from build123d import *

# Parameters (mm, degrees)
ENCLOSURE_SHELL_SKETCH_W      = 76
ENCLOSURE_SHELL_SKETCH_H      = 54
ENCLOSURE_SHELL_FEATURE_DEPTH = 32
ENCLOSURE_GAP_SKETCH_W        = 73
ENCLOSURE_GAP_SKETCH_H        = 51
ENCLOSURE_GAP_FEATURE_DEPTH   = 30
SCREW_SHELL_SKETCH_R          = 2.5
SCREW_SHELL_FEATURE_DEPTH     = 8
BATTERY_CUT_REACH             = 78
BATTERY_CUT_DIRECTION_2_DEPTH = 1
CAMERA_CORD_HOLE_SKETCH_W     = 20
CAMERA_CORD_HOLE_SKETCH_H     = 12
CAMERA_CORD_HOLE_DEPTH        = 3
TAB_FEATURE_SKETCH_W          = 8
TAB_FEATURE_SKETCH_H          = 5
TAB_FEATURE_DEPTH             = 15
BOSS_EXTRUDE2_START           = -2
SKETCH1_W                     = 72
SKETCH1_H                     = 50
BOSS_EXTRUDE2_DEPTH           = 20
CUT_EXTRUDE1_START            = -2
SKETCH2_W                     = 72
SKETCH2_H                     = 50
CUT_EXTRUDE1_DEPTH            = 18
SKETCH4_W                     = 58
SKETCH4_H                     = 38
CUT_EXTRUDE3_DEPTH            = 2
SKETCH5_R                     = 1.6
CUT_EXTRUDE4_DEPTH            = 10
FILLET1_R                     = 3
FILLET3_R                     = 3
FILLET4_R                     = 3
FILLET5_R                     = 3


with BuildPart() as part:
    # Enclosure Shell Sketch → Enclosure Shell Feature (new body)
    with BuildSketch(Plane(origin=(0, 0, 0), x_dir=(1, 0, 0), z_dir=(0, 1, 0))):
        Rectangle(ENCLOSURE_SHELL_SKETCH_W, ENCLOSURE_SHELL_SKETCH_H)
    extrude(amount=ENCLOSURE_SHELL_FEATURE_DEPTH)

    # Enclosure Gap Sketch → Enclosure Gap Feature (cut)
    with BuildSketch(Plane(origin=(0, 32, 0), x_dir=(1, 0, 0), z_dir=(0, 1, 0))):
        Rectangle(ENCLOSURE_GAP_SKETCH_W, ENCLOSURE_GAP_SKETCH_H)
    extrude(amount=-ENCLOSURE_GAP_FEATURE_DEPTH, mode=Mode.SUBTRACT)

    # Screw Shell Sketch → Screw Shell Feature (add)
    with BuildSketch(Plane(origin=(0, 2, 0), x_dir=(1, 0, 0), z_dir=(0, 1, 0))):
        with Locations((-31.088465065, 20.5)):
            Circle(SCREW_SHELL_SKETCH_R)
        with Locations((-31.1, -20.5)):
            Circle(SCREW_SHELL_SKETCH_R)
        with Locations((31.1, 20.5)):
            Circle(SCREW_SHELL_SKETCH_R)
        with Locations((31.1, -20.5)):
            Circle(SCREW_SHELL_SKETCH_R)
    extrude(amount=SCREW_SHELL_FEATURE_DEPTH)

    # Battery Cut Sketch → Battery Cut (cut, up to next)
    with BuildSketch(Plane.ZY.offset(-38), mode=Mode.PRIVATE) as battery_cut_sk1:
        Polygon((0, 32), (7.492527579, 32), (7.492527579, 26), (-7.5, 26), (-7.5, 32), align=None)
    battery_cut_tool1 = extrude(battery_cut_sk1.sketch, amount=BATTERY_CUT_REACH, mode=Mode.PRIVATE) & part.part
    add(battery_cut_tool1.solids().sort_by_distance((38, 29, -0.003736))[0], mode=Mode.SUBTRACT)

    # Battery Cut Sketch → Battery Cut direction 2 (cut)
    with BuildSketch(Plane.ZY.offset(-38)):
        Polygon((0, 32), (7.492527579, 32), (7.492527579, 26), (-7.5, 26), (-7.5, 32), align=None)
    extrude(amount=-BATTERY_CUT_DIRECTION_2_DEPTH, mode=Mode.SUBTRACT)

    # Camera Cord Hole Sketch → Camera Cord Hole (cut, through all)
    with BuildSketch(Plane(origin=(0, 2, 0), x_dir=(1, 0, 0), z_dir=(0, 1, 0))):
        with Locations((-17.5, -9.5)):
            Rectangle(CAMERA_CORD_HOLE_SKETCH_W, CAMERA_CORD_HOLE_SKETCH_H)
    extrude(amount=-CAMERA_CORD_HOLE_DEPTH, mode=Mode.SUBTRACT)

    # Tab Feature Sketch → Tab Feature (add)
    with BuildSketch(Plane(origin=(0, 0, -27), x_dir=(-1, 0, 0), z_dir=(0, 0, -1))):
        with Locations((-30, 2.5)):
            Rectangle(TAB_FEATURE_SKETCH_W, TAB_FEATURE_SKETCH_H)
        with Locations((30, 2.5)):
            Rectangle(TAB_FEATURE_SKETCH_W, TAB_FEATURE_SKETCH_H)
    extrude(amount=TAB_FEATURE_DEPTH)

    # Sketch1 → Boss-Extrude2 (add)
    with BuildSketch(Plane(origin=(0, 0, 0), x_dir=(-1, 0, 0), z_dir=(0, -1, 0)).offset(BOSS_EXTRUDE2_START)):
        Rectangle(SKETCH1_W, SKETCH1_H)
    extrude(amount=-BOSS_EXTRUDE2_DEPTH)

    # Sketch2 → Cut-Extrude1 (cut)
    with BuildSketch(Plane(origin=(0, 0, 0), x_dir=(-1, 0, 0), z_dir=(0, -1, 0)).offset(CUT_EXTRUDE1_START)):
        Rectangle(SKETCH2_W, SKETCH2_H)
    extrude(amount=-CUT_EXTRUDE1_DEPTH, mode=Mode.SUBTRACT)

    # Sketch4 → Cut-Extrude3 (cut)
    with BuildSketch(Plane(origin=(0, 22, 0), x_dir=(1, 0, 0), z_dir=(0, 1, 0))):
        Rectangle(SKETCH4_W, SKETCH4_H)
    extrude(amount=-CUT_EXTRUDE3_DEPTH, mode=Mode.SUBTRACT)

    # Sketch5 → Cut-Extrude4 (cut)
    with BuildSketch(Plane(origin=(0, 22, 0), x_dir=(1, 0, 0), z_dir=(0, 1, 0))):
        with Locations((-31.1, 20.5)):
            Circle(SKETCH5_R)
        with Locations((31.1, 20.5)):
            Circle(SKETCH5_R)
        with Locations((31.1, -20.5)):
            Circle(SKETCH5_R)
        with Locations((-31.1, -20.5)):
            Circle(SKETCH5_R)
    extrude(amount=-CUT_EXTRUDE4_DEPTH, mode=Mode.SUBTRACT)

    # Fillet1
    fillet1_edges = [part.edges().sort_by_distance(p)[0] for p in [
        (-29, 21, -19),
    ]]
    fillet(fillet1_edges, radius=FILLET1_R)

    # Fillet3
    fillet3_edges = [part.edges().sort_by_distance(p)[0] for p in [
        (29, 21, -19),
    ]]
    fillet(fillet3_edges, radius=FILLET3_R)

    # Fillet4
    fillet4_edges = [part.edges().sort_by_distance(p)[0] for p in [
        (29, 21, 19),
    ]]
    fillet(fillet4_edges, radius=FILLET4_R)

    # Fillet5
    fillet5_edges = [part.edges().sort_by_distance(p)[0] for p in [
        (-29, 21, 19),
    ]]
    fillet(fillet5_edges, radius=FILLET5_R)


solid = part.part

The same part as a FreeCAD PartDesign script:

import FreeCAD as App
import Part
import Sketcher

V = App.Vector
Q = App.Units.Quantity


def edges_at(feature, points):
    """Names of the edges that pass closest to the given points."""
    edges = feature.Shape.Edges
    near = lambda p: min(range(len(edges)), key=lambda i: edges[i].distToShape(Part.Vertex(*p))[0])
    return sorted({f"Edge{near(p) + 1}" for p in points})

doc = App.newDocument("Part")
body = doc.addObject("PartDesign::Body", "Body")
body.AllowCompound = True

# Sketch on XZ plane
sketch1 = body.newObject("Sketcher::SketchObject", "Sketch")
sketch1.AttachmentSupport = (doc.getObject("XZ_Plane"), [""])
sketch1.MapMode = "FlatFace"
sketch1.addGeometry(Part.LineSegment(V(-38, -27, 0), V(-38, 27, 0)), False)
sketch1.addGeometry(Part.LineSegment(V(-38, 27, 0), V(38, 27, 0)), False)
sketch1.addGeometry(Part.LineSegment(V(38, 27, 0), V(38, -27, 0)), False)
sketch1.addGeometry(Part.LineSegment(V(38, -27, 0), V(-38, -27, 0)), False)
sketch1.addConstraint(Sketcher.Constraint("Coincident", 0, 2, 1, 1))
sketch1.addConstraint(Sketcher.Constraint("Coincident", 1, 2, 2, 1))
sketch1.addConstraint(Sketcher.Constraint("Coincident", 2, 2, 3, 1))
sketch1.addConstraint(Sketcher.Constraint("Coincident", 3, 2, 0, 1))
sketch1.addConstraint(Sketcher.Constraint("Vertical", 0))
sketch1.addConstraint(Sketcher.Constraint("Horizontal", 1))
sketch1.addConstraint(Sketcher.Constraint("Vertical", 2))
sketch1.addConstraint(Sketcher.Constraint("Horizontal", 3))
sketch1.addConstraint(Sketcher.Constraint("Symmetric", 0, 2, 2, 2, -1, 1))
sketch1.addConstraint(Sketcher.Constraint("DistanceX", 1, 1, 1, 2, Q("76 mm")))
sketch1.addConstraint(Sketcher.Constraint("DistanceY", 0, 1, 0, 2, Q("54 mm")))
pad1 = body.newObject("PartDesign::Pad", "Pad")
pad1.Profile = sketch1
pad1.Length = 32
pad1.Reversed = True

# Sketch on XZ plane
sketch2 = body.newObject("Sketcher::SketchObject", "Sketch001")
sketch2.AttachmentSupport = (doc.getObject("XZ_Plane"), [""])
sketch2.MapMode = "FlatFace"
sketch2.AttachmentOffset = App.Placement(V(0, 0, -32), App.Rotation())
sketch2.addGeometry(Part.LineSegment(V(-36.5, -25.5, 0), V(-36.5, 25.5, 0)), False)
sketch2.addGeometry(Part.LineSegment(V(-36.5, 25.5, 0), V(36.5, 25.5, 0)), False)
sketch2.addGeometry(Part.LineSegment(V(36.5, 25.5, 0), V(36.5, -25.5, 0)), False)
sketch2.addGeometry(Part.LineSegment(V(36.5, -25.5, 0), V(-36.5, -25.5, 0)), False)
sketch2.addConstraint(Sketcher.Constraint("Coincident", 0, 2, 1, 1))
sketch2.addConstraint(Sketcher.Constraint("Coincident", 1, 2, 2, 1))
sketch2.addConstraint(Sketcher.Constraint("Coincident", 2, 2, 3, 1))
sketch2.addConstraint(Sketcher.Constraint("Coincident", 3, 2, 0, 1))
sketch2.addConstraint(Sketcher.Constraint("Vertical", 0))
sketch2.addConstraint(Sketcher.Constraint("Horizontal", 1))
sketch2.addConstraint(Sketcher.Constraint("Vertical", 2))
sketch2.addConstraint(Sketcher.Constraint("Horizontal", 3))
sketch2.addConstraint(Sketcher.Constraint("Symmetric", 0, 2, 2, 2, -1, 1))
sketch2.addConstraint(Sketcher.Constraint("DistanceX", 1, 1, 1, 2, Q("73 mm")))
sketch2.addConstraint(Sketcher.Constraint("DistanceY", 0, 1, 0, 2, Q("51 mm")))
pocket1 = body.newObject("PartDesign::Pocket", "Pocket")
pocket1.Profile = sketch2
pocket1.Length = 30
pocket1.Reversed = True

# Sketch on XZ plane
sketch3 = body.newObject("Sketcher::SketchObject", "Sketch002")
sketch3.AttachmentSupport = (doc.getObject("XZ_Plane"), [""])
sketch3.MapMode = "FlatFace"
sketch3.AttachmentOffset = App.Placement(V(0, 0, -2), App.Rotation())
sketch3.addGeometry(Part.Circle(V(-31.088465, -20.5, 0), V(0, 0, 1), 2.5), False)
sketch3.addGeometry(Part.Circle(V(-31.1, 20.5, 0), V(0, 0, 1), 2.5), False)
sketch3.addGeometry(Part.Circle(V(31.1, -20.5, 0), V(0, 0, 1), 2.5), False)
sketch3.addGeometry(Part.Circle(V(31.1, 20.5, 0), V(0, 0, 1), 2.5), False)
sketch3.addConstraint(Sketcher.Constraint("Equal", 0, 1))
sketch3.addConstraint(Sketcher.Constraint("Equal", 1, 2))
sketch3.addConstraint(Sketcher.Constraint("Equal", 2, 3))
sketch3.addConstraint(Sketcher.Constraint("Symmetric", 1, 3, 2, 3, -1, 1))
sketch3.addConstraint(Sketcher.Constraint("Symmetric", 1, 3, 3, 3, -2))
sketch3.addConstraint(Sketcher.Constraint("Horizontal", 0, 3, 2, 3))
sketch3.addConstraint(Sketcher.Constraint("Diameter", 0, Q("5 mm")))
sketch3.addConstraint(Sketcher.Constraint("DistanceY", 0, 3, 1, 3, Q("41 mm")))
sketch3.addConstraint(Sketcher.Constraint("DistanceX", 1, 3, -1, 1, Q("31.1 mm")))
sketch3.addConstraint(Sketcher.Constraint("DistanceX", 0, 3, -1, 1, Q("31.088465 mm")))
pad2 = body.newObject("PartDesign::Pad", "Pad001")
pad2.Profile = sketch3
pad2.Length = 8
pad2.Reversed = True

# Sketch on YZ plane
sketch4 = body.newObject("Sketcher::SketchObject", "Sketch003")
sketch4.AttachmentSupport = (doc.getObject("YZ_Plane"), [""])
sketch4.MapMode = "FlatFace"
sketch4.AttachmentOffset = App.Placement(V(0, 0, 38), App.Rotation())
sketch4.addGeometry(Part.LineSegment(V(32, 7.492528, 0), V(32, -7.5, 0)), False)
sketch4.addGeometry(Part.LineSegment(V(32, -7.5, 0), V(26, -7.5, 0)), False)
sketch4.addGeometry(Part.LineSegment(V(26, -7.5, 0), V(26, 7.492528, 0)), False)
sketch4.addGeometry(Part.LineSegment(V(26, 7.492528, 0), V(32, 7.492528, 0)), False)
sketch4.addConstraint(Sketcher.Constraint("Coincident", 0, 2, 1, 1))
sketch4.addConstraint(Sketcher.Constraint("Coincident", 1, 2, 2, 1))
sketch4.addConstraint(Sketcher.Constraint("Coincident", 2, 2, 3, 1))
sketch4.addConstraint(Sketcher.Constraint("Coincident", 3, 2, 0, 1))
sketch4.addConstraint(Sketcher.Constraint("Vertical", 0))
sketch4.addConstraint(Sketcher.Constraint("Horizontal", 1))
sketch4.addConstraint(Sketcher.Constraint("Vertical", 2))
sketch4.addConstraint(Sketcher.Constraint("Horizontal", 3))
sketch4.addConstraint(Sketcher.Constraint("DistanceX", 1, 2, 1, 1, Q("6 mm")))
sketch4.addConstraint(Sketcher.Constraint("DistanceX", -1, 1, 0, 2, Q("32 mm")))
sketch4.addConstraint(Sketcher.Constraint("DistanceY", 0, 2, -1, 1, Q("7.5 mm")))
sketch4.addConstraint(Sketcher.Constraint("DistanceY", 0, 2, 0, 1, Q("14.992528 mm")))
pocket2 = body.newObject("PartDesign::Pocket", "Pocket001")
pocket2.Profile = sketch4
pocket2.Type = "UpToFirst"

# Sketch on YZ plane
sketch5 = body.newObject("Sketcher::SketchObject", "Sketch004")
sketch5.AttachmentSupport = (doc.getObject("YZ_Plane"), [""])
sketch5.MapMode = "FlatFace"
sketch5.AttachmentOffset = App.Placement(V(0, 0, 38), App.Rotation())
sketch5.addGeometry(Part.LineSegment(V(32, 7.492528, 0), V(32, -7.5, 0)), False)
sketch5.addGeometry(Part.LineSegment(V(32, -7.5, 0), V(26, -7.5, 0)), False)
sketch5.addGeometry(Part.LineSegment(V(26, -7.5, 0), V(26, 7.492528, 0)), False)
sketch5.addGeometry(Part.LineSegment(V(26, 7.492528, 0), V(32, 7.492528, 0)), False)
sketch5.addConstraint(Sketcher.Constraint("Coincident", 0, 2, 1, 1))
sketch5.addConstraint(Sketcher.Constraint("Coincident", 1, 2, 2, 1))
sketch5.addConstraint(Sketcher.Constraint("Coincident", 2, 2, 3, 1))
sketch5.addConstraint(Sketcher.Constraint("Coincident", 3, 2, 0, 1))
sketch5.addConstraint(Sketcher.Constraint("Vertical", 0))
sketch5.addConstraint(Sketcher.Constraint("Horizontal", 1))
sketch5.addConstraint(Sketcher.Constraint("Vertical", 2))
sketch5.addConstraint(Sketcher.Constraint("Horizontal", 3))
sketch5.addConstraint(Sketcher.Constraint("DistanceX", 1, 2, 1, 1, Q("6 mm")))
sketch5.addConstraint(Sketcher.Constraint("DistanceX", -1, 1, 0, 2, Q("32 mm")))
sketch5.addConstraint(Sketcher.Constraint("DistanceY", 0, 2, -1, 1, Q("7.5 mm")))
sketch5.addConstraint(Sketcher.Constraint("DistanceY", 0, 2, 0, 1, Q("14.992528 mm")))
pocket3 = body.newObject("PartDesign::Pocket", "Pocket002")
pocket3.Profile = sketch5
pocket3.Length = 1
pocket3.Reversed = True

# Sketch on XZ plane
sketch6 = body.newObject("Sketcher::SketchObject", "Sketch005")
sketch6.AttachmentSupport = (doc.getObject("XZ_Plane"), [""])
sketch6.MapMode = "FlatFace"
sketch6.AttachmentOffset = App.Placement(V(0, 0, -2), App.Rotation())
sketch6.addGeometry(Part.LineSegment(V(-27.5, 3.5, 0), V(-27.5, 15.5, 0)), False)
sketch6.addGeometry(Part.LineSegment(V(-27.5, 15.5, 0), V(-7.5, 15.5, 0)), False)
sketch6.addGeometry(Part.LineSegment(V(-7.5, 15.5, 0), V(-7.5, 3.5, 0)), False)
sketch6.addGeometry(Part.LineSegment(V(-7.5, 3.5, 0), V(-27.5, 3.5, 0)), False)
sketch6.addConstraint(Sketcher.Constraint("Coincident", 0, 2, 1, 1))
sketch6.addConstraint(Sketcher.Constraint("Coincident", 1, 2, 2, 1))
sketch6.addConstraint(Sketcher.Constraint("Coincident", 2, 2, 3, 1))
sketch6.addConstraint(Sketcher.Constraint("Coincident", 3, 2, 0, 1))
sketch6.addConstraint(Sketcher.Constraint("Vertical", 0))
sketch6.addConstraint(Sketcher.Constraint("Horizontal", 1))
sketch6.addConstraint(Sketcher.Constraint("Vertical", 2))
sketch6.addConstraint(Sketcher.Constraint("Horizontal", 3))
sketch6.addConstraint(Sketcher.Constraint("DistanceX", 1, 1, 1, 2, Q("20 mm")))
sketch6.addConstraint(Sketcher.Constraint("DistanceY", 0, 1, 0, 2, Q("12 mm")))
sketch6.addConstraint(Sketcher.Constraint("DistanceX", 0, 2, -1, 1, Q("27.5 mm")))
sketch6.addConstraint(Sketcher.Constraint("DistanceY", -1, 1, 0, 2, Q("15.5 mm")))
pocket4 = body.newObject("PartDesign::Pocket", "Pocket003")
pocket4.Profile = sketch6
pocket4.Type = "ThroughAll"
pocket4.Reversed = True

# Sketch on XY plane
sketch7 = body.newObject("Sketcher::SketchObject", "Sketch006")
sketch7.AttachmentSupport = (doc.getObject("XY_Plane"), [""])
sketch7.MapMode = "FlatFace"
sketch7.AttachmentOffset = App.Placement(V(0, 0, -27), App.Rotation())
sketch7.addGeometry(Part.LineSegment(V(34, 5, 0), V(34, 0, 0)), False)
sketch7.addGeometry(Part.LineSegment(V(34, 0, 0), V(26, 0, 0)), False)
sketch7.addGeometry(Part.LineSegment(V(26, 0, 0), V(26, 5, 0)), False)
sketch7.addGeometry(Part.LineSegment(V(26, 5, 0), V(34, 5, 0)), False)
sketch7.addGeometry(Part.LineSegment(V(-26, 5, 0), V(-26, 0, 0)), False)
sketch7.addGeometry(Part.LineSegment(V(-26, 0, 0), V(-34, 0, 0)), False)
sketch7.addGeometry(Part.LineSegment(V(-34, 0, 0), V(-34, 5, 0)), False)
sketch7.addGeometry(Part.LineSegment(V(-34, 5, 0), V(-26, 5, 0)), False)
sketch7.addConstraint(Sketcher.Constraint("Coincident", 0, 2, 1, 1))
sketch7.addConstraint(Sketcher.Constraint("Coincident", 1, 2, 2, 1))
sketch7.addConstraint(Sketcher.Constraint("Coincident", 2, 2, 3, 1))
sketch7.addConstraint(Sketcher.Constraint("Coincident", 3, 2, 0, 1))
sketch7.addConstraint(Sketcher.Constraint("Coincident", 4, 2, 5, 1))
sketch7.addConstraint(Sketcher.Constraint("Coincident", 5, 2, 6, 1))
sketch7.addConstraint(Sketcher.Constraint("Coincident", 6, 2, 7, 1))
sketch7.addConstraint(Sketcher.Constraint("Coincident", 7, 2, 4, 1))
sketch7.addConstraint(Sketcher.Constraint("Vertical", 0))
sketch7.addConstraint(Sketcher.Constraint("Horizontal", 1))
sketch7.addConstraint(Sketcher.Constraint("Vertical", 2))
sketch7.addConstraint(Sketcher.Constraint("Horizontal", 3))
sketch7.addConstraint(Sketcher.Constraint("Vertical", 4))
sketch7.addConstraint(Sketcher.Constraint("Horizontal", 5))
sketch7.addConstraint(Sketcher.Constraint("Vertical", 6))
sketch7.addConstraint(Sketcher.Constraint("Horizontal", 7))
sketch7.addConstraint(Sketcher.Constraint("Symmetric", 1, 2, 4, 2, -1, 1))
sketch7.addConstraint(Sketcher.Constraint("Symmetric", 0, 2, 5, 2, -2))
sketch7.addConstraint(Sketcher.Constraint("Horizontal", 3, 2, 6, 2))
sketch7.addConstraint(Sketcher.Constraint("DistanceX", 1, 2, 1, 1, Q("8 mm")))
sketch7.addConstraint(Sketcher.Constraint("DistanceY", 0, 2, 0, 1, Q("5 mm")))
sketch7.addConstraint(Sketcher.Constraint("DistanceX", -1, 1, 0, 2, Q("34 mm")))
pad3 = body.newObject("PartDesign::Pad", "Pad002")
pad3.Profile = sketch7
pad3.Length = 15
pad3.Reversed = True

# Sketch on XZ plane
sketch8 = body.newObject("Sketcher::SketchObject", "Sketch007")
sketch8.AttachmentSupport = (doc.getObject("XZ_Plane"), [""])
sketch8.MapMode = "FlatFace"
sketch8.AttachmentOffset = App.Placement(V(0, 0, -2), App.Rotation())
sketch8.addGeometry(Part.LineSegment(V(36, -25, 0), V(36, 25, 0)), False)
sketch8.addGeometry(Part.LineSegment(V(36, 25, 0), V(-36, 25, 0)), False)
sketch8.addGeometry(Part.LineSegment(V(-36, 25, 0), V(-36, -25, 0)), False)
sketch8.addGeometry(Part.LineSegment(V(-36, -25, 0), V(36, -25, 0)), False)
sketch8.addConstraint(Sketcher.Constraint("Coincident", 0, 2, 1, 1))
sketch8.addConstraint(Sketcher.Constraint("Coincident", 1, 2, 2, 1))
sketch8.addConstraint(Sketcher.Constraint("Coincident", 2, 2, 3, 1))
sketch8.addConstraint(Sketcher.Constraint("Coincident", 3, 2, 0, 1))
sketch8.addConstraint(Sketcher.Constraint("Vertical", 0))
sketch8.addConstraint(Sketcher.Constraint("Horizontal", 1))
sketch8.addConstraint(Sketcher.Constraint("Vertical", 2))
sketch8.addConstraint(Sketcher.Constraint("Horizontal", 3))
sketch8.addConstraint(Sketcher.Constraint("Symmetric", 0, 2, 2, 2, -1, 1))
sketch8.addConstraint(Sketcher.Constraint("DistanceX", 1, 2, 1, 1, Q("72 mm")))
sketch8.addConstraint(Sketcher.Constraint("DistanceY", 0, 1, 0, 2, Q("50 mm")))
pad4 = body.newObject("PartDesign::Pad", "Pad003")
pad4.Profile = sketch8
pad4.Length = 20
pad4.Reversed = True

# Sketch on XZ plane
sketch9 = body.newObject("Sketcher::SketchObject", "Sketch008")
sketch9.AttachmentSupport = (doc.getObject("XZ_Plane"), [""])
sketch9.MapMode = "FlatFace"
sketch9.AttachmentOffset = App.Placement(V(0, 0, -2), App.Rotation())
sketch9.addGeometry(Part.LineSegment(V(36, -25, 0), V(36, 25, 0)), False)
sketch9.addGeometry(Part.LineSegment(V(36, 25, 0), V(-36, 25, 0)), False)
sketch9.addGeometry(Part.LineSegment(V(-36, 25, 0), V(-36, -25, 0)), False)
sketch9.addGeometry(Part.LineSegment(V(-36, -25, 0), V(36, -25, 0)), False)
sketch9.addConstraint(Sketcher.Constraint("Coincident", 0, 2, 1, 1))
sketch9.addConstraint(Sketcher.Constraint("Coincident", 1, 2, 2, 1))
sketch9.addConstraint(Sketcher.Constraint("Coincident", 2, 2, 3, 1))
sketch9.addConstraint(Sketcher.Constraint("Coincident", 3, 2, 0, 1))
sketch9.addConstraint(Sketcher.Constraint("Vertical", 0))
sketch9.addConstraint(Sketcher.Constraint("Horizontal", 1))
sketch9.addConstraint(Sketcher.Constraint("Vertical", 2))
sketch9.addConstraint(Sketcher.Constraint("Horizontal", 3))
sketch9.addConstraint(Sketcher.Constraint("Symmetric", 0, 2, 2, 2, -1, 1))
sketch9.addConstraint(Sketcher.Constraint("DistanceX", 1, 2, 1, 1, Q("72 mm")))
sketch9.addConstraint(Sketcher.Constraint("DistanceY", 0, 1, 0, 2, Q("50 mm")))
pocket5 = body.newObject("PartDesign::Pocket", "Pocket004")
pocket5.Profile = sketch9
pocket5.Length = 18

# Sketch on XZ plane
sketch10 = body.newObject("Sketcher::SketchObject", "Sketch009")
sketch10.AttachmentSupport = (doc.getObject("XZ_Plane"), [""])
sketch10.MapMode = "FlatFace"
sketch10.AttachmentOffset = App.Placement(V(0, 0, -22), App.Rotation())
sketch10.addGeometry(Part.LineSegment(V(-29, -19, 0), V(-29, 19, 0)), False)
sketch10.addGeometry(Part.LineSegment(V(-29, 19, 0), V(29, 19, 0)), False)
sketch10.addGeometry(Part.LineSegment(V(29, 19, 0), V(29, -19, 0)), False)
sketch10.addGeometry(Part.LineSegment(V(29, -19, 0), V(-29, -19, 0)), False)
sketch10.addConstraint(Sketcher.Constraint("Coincident", 0, 2, 1, 1))
sketch10.addConstraint(Sketcher.Constraint("Coincident", 1, 2, 2, 1))
sketch10.addConstraint(Sketcher.Constraint("Coincident", 2, 2, 3, 1))
sketch10.addConstraint(Sketcher.Constraint("Coincident", 3, 2, 0, 1))
sketch10.addConstraint(Sketcher.Constraint("Vertical", 0))
sketch10.addConstraint(Sketcher.Constraint("Horizontal", 1))
sketch10.addConstraint(Sketcher.Constraint("Vertical", 2))
sketch10.addConstraint(Sketcher.Constraint("Horizontal", 3))
sketch10.addConstraint(Sketcher.Constraint("Symmetric", 0, 2, 2, 2, -1, 1))
sketch10.addConstraint(Sketcher.Constraint("DistanceX", 1, 1, 1, 2, Q("58 mm")))
sketch10.addConstraint(Sketcher.Constraint("DistanceY", 0, 1, 0, 2, Q("38 mm")))
pocket6 = body.newObject("PartDesign::Pocket", "Pocket005")
pocket6.Profile = sketch10
pocket6.Length = 2
pocket6.Reversed = True

# Sketch on XZ plane
sketch11 = body.newObject("Sketcher::SketchObject", "Sketch010")
sketch11.AttachmentSupport = (doc.getObject("XZ_Plane"), [""])
sketch11.MapMode = "FlatFace"
sketch11.AttachmentOffset = App.Placement(V(0, 0, -22), App.Rotation())
sketch11.addGeometry(Part.Circle(V(-31.1, -20.5, 0), V(0, 0, 1), 1.6), False)
sketch11.addGeometry(Part.Circle(V(31.1, -20.5, 0), V(0, 0, 1), 1.6), False)
sketch11.addGeometry(Part.Circle(V(31.1, 20.5, 0), V(0, 0, 1), 1.6), False)
sketch11.addGeometry(Part.Circle(V(-31.1, 20.5, 0), V(0, 0, 1), 1.6), False)
sketch11.addConstraint(Sketcher.Constraint("Equal", 0, 1))
sketch11.addConstraint(Sketcher.Constraint("Equal", 1, 2))
sketch11.addConstraint(Sketcher.Constraint("Equal", 2, 3))
sketch11.addConstraint(Sketcher.Constraint("Symmetric", 0, 3, 2, 3, -1, 1))
sketch11.addConstraint(Sketcher.Constraint("Symmetric", 1, 3, 3, 3, -1, 1))
sketch11.addConstraint(Sketcher.Constraint("Symmetric", 0, 3, 1, 3, -2))
sketch11.addConstraint(Sketcher.Constraint("Diameter", 0, Q("3.2 mm")))
sketch11.addConstraint(Sketcher.Constraint("DistanceY", 1, 3, 2, 3, Q("41 mm")))
sketch11.addConstraint(Sketcher.Constraint("DistanceX", 0, 3, -1, 1, Q("31.1 mm")))
pocket7 = body.newObject("PartDesign::Pocket", "Pocket006")
pocket7.Profile = sketch11
pocket7.Length = 10
pocket7.Reversed = True
doc.recompute()

fillet = body.newObject("PartDesign::Fillet", "Fillet")
fillet.Base = (pocket7, edges_at(pocket7, [(-29, 21, -19)]))
fillet.Radius = 3
doc.recompute()

fillet2 = body.newObject("PartDesign::Fillet", "Fillet001")
fillet2.Base = (fillet, edges_at(fillet, [(29, 21, -19)]))
fillet2.Radius = 3
doc.recompute()

fillet3 = body.newObject("PartDesign::Fillet", "Fillet002")
fillet3.Base = (fillet2, edges_at(fillet2, [(29, 21, 19)]))
fillet3.Radius = 3
doc.recompute()

fillet4 = body.newObject("PartDesign::Fillet", "Fillet003")
fillet4.Base = (fillet3, edges_at(fillet3, [(-29, 21, 19)]))
fillet4.Radius = 3

doc.recompute()
